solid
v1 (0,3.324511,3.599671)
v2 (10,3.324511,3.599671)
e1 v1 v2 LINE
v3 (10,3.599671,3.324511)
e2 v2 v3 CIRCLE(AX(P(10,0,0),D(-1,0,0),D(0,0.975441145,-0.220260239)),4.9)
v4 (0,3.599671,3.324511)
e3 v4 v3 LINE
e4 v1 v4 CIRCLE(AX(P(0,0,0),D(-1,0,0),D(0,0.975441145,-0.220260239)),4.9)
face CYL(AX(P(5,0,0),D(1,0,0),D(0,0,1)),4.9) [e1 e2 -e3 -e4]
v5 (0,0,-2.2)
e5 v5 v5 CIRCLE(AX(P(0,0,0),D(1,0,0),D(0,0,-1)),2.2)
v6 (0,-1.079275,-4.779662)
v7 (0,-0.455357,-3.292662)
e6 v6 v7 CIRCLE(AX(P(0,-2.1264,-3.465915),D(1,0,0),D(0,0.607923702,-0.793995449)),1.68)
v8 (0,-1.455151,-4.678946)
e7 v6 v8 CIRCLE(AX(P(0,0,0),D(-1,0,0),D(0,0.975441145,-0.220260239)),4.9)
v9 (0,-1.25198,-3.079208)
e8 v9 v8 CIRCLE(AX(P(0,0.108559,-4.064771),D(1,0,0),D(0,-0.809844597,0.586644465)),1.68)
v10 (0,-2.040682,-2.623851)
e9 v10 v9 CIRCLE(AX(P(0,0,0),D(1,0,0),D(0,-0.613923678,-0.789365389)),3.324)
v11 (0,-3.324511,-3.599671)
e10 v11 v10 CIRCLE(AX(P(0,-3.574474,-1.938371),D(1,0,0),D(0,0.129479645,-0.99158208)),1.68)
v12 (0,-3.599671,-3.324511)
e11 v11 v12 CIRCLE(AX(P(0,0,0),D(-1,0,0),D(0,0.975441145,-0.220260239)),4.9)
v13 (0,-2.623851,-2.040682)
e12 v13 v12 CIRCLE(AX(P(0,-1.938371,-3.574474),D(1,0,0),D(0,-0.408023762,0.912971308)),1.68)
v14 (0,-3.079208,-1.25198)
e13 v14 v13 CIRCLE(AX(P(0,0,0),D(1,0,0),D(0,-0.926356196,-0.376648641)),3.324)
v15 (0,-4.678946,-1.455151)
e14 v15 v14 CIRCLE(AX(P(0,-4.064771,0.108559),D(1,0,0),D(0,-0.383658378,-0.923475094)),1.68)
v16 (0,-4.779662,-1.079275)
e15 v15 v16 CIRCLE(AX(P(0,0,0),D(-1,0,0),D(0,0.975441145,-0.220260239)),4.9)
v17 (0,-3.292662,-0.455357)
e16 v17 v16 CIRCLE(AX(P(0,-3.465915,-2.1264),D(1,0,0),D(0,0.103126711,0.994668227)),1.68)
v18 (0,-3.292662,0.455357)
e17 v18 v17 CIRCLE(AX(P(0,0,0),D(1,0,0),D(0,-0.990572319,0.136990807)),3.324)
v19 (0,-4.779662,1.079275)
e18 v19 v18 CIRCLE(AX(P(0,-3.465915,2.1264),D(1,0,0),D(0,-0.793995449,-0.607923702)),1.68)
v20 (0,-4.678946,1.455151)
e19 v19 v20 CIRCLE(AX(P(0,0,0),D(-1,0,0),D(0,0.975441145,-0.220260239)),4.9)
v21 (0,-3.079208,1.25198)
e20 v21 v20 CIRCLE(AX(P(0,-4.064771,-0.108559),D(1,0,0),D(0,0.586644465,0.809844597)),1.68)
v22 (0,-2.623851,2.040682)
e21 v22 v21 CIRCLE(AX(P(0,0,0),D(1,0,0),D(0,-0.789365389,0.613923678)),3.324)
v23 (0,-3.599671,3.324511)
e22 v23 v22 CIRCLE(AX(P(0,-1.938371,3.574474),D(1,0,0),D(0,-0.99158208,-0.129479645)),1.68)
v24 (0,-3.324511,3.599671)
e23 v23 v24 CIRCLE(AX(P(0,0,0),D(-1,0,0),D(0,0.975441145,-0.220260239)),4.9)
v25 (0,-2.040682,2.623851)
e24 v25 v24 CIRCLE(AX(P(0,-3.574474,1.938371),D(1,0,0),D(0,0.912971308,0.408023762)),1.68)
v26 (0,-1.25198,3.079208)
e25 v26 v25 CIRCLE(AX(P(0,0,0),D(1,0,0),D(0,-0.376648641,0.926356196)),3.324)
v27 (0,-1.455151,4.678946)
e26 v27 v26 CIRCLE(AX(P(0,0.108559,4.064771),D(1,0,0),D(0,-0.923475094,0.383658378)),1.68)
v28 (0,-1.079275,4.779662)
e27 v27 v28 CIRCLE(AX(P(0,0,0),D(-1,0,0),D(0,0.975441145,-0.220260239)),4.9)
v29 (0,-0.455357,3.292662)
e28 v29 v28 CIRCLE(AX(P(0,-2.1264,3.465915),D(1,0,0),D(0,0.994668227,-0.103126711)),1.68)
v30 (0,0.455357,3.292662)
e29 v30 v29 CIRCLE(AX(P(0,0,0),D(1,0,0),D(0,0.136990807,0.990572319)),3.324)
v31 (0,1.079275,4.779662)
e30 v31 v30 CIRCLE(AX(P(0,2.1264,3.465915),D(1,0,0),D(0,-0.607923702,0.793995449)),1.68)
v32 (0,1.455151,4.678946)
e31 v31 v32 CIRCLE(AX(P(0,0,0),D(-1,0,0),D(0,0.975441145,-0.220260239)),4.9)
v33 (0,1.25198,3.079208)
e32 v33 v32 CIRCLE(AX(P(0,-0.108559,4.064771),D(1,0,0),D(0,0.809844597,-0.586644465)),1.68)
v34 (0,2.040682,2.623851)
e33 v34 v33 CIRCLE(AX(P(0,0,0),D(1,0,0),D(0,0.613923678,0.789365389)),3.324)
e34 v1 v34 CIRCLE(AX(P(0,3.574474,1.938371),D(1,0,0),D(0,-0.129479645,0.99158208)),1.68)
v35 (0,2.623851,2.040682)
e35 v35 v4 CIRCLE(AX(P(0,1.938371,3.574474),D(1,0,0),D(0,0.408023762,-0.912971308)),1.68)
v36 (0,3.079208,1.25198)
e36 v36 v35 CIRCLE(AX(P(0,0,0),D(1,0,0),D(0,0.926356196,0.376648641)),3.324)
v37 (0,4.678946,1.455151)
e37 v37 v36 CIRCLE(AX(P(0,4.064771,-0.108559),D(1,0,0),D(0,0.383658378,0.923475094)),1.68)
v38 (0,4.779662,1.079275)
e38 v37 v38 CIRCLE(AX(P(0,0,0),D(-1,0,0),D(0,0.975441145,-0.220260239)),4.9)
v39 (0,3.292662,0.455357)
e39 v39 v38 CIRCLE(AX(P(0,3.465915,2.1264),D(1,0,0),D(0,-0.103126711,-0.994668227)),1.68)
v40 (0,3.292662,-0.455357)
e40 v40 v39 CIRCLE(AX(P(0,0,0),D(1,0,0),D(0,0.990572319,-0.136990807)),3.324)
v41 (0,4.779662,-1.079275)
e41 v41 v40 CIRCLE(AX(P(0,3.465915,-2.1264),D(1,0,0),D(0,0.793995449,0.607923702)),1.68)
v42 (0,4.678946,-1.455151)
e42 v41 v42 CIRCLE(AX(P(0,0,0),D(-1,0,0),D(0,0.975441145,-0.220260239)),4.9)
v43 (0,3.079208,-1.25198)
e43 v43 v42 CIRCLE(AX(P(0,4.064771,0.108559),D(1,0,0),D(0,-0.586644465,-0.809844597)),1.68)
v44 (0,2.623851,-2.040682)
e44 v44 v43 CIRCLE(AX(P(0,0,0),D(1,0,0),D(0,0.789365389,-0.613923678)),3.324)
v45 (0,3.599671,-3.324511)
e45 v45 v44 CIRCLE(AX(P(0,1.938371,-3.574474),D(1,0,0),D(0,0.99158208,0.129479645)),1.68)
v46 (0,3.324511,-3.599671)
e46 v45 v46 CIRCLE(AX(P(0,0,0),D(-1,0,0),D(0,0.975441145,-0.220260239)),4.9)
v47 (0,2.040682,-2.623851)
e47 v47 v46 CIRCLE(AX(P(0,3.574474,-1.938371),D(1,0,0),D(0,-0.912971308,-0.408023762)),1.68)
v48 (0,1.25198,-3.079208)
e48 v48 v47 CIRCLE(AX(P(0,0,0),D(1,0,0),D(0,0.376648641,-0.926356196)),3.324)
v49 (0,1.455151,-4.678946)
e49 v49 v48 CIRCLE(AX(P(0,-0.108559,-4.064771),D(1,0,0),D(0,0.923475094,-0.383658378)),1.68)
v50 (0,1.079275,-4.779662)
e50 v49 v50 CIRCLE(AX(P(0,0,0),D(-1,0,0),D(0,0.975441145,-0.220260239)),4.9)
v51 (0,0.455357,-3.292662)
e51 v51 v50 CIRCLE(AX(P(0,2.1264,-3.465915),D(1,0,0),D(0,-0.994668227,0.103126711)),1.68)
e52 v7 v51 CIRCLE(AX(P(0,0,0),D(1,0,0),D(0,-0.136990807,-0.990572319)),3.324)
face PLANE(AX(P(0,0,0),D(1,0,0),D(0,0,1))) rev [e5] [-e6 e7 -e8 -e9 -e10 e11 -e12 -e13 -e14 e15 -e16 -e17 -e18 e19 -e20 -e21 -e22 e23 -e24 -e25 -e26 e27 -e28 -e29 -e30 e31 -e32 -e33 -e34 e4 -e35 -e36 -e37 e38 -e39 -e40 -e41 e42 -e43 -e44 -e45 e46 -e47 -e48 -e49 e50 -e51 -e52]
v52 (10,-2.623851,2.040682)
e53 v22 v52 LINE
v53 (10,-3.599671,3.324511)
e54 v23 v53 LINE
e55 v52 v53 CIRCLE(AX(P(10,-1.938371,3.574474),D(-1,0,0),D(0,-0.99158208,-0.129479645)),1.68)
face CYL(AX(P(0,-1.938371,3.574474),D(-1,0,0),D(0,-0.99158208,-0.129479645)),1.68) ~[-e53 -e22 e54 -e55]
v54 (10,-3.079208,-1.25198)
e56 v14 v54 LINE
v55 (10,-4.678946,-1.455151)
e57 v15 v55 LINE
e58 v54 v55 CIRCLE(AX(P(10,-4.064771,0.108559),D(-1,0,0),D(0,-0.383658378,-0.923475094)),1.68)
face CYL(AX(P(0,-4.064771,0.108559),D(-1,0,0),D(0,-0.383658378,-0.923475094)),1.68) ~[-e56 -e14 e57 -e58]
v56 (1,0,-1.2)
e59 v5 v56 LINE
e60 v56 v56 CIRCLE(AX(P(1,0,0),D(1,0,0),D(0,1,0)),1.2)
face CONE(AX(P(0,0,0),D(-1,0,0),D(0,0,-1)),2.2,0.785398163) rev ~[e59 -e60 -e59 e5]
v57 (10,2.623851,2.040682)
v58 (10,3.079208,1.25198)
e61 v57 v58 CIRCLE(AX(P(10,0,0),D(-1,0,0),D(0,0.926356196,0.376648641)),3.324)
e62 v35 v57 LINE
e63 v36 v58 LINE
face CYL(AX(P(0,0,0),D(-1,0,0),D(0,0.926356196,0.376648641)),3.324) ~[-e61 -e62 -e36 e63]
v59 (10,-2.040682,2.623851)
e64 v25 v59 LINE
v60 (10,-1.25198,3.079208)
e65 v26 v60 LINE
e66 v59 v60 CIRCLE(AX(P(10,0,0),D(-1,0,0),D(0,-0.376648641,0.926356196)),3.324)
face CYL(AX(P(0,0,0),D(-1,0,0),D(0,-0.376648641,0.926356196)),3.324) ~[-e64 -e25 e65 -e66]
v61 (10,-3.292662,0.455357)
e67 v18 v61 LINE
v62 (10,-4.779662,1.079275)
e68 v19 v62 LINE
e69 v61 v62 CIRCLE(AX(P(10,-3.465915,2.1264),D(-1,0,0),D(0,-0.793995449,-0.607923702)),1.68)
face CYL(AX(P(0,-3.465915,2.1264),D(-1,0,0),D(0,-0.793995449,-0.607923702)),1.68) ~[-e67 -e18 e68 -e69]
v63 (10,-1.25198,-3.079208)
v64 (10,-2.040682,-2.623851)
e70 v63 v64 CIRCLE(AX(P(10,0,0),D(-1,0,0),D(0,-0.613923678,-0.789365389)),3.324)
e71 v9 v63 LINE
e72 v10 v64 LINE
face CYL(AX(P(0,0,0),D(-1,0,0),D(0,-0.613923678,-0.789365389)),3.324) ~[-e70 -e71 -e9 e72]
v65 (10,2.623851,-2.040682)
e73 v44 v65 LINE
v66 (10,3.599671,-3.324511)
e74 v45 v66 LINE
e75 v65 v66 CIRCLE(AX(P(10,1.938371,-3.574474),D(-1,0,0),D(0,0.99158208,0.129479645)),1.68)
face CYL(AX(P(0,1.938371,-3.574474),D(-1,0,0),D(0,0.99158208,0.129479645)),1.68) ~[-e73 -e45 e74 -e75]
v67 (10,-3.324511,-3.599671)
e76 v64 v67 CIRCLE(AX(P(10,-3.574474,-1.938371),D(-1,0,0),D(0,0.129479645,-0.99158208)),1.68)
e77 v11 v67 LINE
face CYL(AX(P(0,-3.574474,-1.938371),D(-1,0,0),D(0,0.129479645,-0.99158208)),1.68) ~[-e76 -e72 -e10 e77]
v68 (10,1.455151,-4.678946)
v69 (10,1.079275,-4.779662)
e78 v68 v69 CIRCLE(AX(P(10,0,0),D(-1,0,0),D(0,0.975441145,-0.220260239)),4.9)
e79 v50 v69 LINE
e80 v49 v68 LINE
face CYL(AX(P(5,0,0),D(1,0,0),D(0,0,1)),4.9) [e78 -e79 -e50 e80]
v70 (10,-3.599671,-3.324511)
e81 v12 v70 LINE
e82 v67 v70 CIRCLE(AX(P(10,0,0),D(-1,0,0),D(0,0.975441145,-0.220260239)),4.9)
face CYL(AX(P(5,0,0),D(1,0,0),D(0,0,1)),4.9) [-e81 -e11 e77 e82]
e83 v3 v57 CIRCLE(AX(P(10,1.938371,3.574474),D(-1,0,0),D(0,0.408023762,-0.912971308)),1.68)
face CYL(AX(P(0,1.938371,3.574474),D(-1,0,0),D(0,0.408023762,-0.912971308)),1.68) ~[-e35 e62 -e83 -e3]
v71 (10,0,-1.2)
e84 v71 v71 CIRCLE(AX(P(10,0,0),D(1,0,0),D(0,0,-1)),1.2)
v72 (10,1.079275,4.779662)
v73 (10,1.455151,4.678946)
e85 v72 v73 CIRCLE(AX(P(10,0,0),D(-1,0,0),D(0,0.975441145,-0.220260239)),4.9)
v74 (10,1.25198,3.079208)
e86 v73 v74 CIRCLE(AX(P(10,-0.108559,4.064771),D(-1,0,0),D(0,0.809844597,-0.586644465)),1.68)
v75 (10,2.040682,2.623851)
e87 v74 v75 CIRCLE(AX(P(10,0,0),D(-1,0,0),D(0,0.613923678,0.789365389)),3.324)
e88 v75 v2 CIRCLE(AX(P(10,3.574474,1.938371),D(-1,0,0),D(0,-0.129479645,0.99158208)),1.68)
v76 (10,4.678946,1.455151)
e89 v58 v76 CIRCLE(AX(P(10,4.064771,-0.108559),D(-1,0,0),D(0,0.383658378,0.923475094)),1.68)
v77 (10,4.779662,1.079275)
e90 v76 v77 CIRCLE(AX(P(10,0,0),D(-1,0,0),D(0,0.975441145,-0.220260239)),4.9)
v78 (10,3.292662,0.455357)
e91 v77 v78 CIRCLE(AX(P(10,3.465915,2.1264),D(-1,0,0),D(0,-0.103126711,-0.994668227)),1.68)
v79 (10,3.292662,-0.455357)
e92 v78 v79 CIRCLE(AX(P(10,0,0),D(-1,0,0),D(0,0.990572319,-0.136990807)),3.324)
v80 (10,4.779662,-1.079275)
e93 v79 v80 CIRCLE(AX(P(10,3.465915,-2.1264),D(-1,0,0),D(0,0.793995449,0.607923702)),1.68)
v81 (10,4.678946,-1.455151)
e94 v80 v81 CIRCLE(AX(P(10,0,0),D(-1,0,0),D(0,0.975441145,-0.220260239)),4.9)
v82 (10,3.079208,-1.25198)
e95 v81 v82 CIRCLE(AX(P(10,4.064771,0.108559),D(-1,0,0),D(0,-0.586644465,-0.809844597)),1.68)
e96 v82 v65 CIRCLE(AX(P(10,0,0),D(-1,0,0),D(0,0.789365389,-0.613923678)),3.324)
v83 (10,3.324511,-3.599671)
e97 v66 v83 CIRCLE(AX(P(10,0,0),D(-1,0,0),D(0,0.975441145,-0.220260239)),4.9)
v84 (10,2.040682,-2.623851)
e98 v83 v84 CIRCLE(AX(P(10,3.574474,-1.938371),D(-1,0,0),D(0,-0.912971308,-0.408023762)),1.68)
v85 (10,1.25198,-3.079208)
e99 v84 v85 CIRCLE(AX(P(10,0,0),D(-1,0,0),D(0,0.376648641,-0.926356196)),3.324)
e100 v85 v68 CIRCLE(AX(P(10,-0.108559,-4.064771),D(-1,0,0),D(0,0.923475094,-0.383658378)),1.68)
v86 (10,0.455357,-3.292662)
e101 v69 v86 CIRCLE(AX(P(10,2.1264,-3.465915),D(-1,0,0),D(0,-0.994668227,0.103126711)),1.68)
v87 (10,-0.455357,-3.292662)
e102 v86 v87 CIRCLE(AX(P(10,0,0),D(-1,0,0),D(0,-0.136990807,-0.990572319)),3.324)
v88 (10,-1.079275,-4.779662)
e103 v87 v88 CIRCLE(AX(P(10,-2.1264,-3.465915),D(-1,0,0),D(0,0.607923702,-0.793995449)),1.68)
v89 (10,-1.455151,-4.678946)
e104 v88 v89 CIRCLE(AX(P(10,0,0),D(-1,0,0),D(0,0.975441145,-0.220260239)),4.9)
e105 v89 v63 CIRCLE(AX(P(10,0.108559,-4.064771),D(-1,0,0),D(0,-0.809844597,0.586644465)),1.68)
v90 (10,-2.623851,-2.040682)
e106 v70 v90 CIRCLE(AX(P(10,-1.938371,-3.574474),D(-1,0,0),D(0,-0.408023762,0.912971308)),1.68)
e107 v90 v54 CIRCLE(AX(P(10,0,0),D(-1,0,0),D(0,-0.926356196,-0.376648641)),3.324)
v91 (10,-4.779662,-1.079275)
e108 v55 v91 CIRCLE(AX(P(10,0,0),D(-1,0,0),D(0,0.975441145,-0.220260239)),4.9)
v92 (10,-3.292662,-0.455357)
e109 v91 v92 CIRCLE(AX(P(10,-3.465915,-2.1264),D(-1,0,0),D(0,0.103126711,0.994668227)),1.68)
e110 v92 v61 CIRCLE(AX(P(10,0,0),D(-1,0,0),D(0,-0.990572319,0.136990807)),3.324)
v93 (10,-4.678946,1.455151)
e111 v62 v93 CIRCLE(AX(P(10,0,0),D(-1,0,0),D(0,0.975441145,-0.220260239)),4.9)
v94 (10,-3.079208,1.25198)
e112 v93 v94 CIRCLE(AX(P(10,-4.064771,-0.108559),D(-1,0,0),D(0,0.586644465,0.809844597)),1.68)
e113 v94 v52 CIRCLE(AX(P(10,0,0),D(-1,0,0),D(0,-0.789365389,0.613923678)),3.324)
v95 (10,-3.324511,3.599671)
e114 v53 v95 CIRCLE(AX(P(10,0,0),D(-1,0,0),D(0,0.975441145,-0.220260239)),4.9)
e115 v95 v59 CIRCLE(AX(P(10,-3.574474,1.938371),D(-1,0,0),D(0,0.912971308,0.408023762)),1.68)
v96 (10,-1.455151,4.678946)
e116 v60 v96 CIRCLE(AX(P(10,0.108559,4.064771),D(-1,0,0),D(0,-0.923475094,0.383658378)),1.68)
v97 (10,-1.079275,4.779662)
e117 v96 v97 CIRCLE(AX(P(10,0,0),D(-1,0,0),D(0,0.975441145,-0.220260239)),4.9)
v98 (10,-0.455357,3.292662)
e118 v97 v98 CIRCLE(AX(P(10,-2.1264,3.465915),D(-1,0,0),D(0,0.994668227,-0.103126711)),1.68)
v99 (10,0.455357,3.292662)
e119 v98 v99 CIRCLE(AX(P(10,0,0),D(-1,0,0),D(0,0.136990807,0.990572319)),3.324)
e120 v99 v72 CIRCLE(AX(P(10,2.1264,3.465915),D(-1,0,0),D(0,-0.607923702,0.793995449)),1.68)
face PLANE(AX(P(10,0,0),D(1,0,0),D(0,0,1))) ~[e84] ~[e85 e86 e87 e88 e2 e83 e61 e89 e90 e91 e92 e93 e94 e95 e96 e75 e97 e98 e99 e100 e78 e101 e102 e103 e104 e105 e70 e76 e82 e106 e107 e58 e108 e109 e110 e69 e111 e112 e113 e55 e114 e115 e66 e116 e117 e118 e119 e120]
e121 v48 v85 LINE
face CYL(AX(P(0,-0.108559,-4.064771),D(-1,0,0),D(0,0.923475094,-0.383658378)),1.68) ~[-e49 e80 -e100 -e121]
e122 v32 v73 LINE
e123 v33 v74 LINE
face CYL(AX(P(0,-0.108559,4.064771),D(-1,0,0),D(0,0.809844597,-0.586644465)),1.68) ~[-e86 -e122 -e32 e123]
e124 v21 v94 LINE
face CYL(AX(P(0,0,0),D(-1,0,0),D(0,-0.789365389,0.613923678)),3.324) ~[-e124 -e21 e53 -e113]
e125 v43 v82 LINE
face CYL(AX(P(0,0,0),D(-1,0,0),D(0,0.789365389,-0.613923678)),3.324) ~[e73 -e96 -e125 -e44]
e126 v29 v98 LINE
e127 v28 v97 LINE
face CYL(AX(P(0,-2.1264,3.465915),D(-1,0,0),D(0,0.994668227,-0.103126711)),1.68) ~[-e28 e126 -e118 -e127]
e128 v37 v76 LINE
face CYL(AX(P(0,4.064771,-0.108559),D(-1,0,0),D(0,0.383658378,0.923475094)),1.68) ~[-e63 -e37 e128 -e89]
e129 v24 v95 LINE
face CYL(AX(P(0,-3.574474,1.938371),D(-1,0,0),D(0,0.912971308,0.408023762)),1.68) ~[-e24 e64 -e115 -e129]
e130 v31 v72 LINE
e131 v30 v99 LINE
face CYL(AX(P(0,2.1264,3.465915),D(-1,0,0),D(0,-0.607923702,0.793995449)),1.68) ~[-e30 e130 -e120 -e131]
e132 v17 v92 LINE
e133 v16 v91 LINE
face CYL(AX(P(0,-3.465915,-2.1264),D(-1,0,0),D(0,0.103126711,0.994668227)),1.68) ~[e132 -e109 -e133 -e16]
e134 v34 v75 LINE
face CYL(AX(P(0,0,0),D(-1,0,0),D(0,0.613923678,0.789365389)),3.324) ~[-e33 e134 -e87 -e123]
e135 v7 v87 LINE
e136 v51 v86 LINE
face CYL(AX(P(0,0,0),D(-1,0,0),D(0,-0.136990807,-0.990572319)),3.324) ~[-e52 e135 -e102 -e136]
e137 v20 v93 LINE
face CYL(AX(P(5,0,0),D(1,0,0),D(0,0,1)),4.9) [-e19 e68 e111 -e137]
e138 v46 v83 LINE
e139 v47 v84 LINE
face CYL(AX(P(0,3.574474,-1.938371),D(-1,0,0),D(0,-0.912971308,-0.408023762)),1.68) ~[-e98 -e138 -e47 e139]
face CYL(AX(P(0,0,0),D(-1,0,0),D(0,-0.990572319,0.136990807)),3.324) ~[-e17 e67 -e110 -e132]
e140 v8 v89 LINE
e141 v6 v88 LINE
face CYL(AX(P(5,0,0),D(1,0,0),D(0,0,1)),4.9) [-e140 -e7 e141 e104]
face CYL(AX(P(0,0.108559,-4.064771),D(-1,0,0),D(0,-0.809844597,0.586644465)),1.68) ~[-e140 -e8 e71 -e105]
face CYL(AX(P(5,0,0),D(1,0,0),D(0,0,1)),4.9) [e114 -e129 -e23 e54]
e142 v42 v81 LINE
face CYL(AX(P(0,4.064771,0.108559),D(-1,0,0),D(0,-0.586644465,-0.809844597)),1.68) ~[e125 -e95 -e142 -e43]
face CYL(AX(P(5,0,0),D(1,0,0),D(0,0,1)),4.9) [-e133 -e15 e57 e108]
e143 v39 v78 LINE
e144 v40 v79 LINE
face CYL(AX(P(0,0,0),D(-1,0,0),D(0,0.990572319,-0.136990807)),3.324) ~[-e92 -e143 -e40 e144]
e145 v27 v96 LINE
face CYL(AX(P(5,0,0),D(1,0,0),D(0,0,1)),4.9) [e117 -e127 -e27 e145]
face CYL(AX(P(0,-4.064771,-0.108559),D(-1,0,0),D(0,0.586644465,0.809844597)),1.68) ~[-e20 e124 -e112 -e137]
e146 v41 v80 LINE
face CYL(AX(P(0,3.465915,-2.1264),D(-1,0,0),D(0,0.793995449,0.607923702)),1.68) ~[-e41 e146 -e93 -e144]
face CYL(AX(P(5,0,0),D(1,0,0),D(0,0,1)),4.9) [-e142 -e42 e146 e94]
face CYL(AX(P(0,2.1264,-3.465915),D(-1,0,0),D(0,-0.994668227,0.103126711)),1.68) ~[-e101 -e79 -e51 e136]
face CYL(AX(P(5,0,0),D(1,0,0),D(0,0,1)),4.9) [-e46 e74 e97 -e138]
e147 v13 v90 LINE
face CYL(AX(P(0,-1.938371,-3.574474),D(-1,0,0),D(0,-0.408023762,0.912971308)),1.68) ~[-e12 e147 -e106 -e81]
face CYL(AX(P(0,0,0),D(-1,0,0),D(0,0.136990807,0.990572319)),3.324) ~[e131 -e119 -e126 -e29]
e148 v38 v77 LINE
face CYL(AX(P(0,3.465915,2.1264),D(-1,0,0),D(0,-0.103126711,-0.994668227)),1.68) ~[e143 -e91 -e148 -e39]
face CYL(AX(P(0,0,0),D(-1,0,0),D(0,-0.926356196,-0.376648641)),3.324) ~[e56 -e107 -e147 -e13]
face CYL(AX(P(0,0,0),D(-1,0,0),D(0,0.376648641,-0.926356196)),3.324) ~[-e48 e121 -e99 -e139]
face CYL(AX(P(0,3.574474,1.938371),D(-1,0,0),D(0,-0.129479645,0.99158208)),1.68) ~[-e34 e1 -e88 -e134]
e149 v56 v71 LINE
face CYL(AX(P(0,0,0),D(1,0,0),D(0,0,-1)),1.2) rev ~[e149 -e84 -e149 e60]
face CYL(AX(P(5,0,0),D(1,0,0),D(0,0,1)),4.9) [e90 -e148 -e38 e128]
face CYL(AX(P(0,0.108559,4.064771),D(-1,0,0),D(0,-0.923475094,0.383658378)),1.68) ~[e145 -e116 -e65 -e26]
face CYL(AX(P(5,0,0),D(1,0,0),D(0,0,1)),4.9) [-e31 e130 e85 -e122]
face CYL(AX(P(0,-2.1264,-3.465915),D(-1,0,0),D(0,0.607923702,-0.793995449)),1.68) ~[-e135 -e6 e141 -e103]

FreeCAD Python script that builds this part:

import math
import FreeCAD as App
import Part
import Sketcher

V = App.Vector
Q = App.Units.Quantity

doc = App.newDocument("Part")
body = doc.addObject("PartDesign::Body", "Body")

sketch1 = body.newObject("Sketcher::SketchObject", "Sketch")
sketch1.AttachmentSupport = (doc.getObject("XZ_Plane"), [""])
sketch1.MapMode = "FlatFace"
sketch1.addGeometry([
    Part.LineSegment(V(0, -4.9, 0), V(0, 0, 0)),
    Part.LineSegment(V(0, 0, 0), V(10, 0, 0)),
    Part.LineSegment(V(10, 0, 0), V(10, -4.9, 0)),
    Part.LineSegment(V(10, -4.9, 0), V(0, -4.9, 0)),
], False)
sketch1.addConstraint([
    Sketcher.Constraint("Coincident", 0, 2, 1, 1),
    Sketcher.Constraint("Coincident", 1, 2, 2, 1),
    Sketcher.Constraint("Coincident", 2, 2, 3, 1),
    Sketcher.Constraint("Coincident", 3, 2, 0, 1),
    Sketcher.Constraint("Vertical", 0),
    Sketcher.Constraint("Horizontal", 1),
    Sketcher.Constraint("Vertical", 2),
    Sketcher.Constraint("Horizontal", 3),
    Sketcher.Constraint("Coincident", 0, 2, -1, 1),
    Sketcher.Constraint("DistanceX", 1, 1, 1, 2, Q("10 mm")),
    Sketcher.Constraint("DistanceY", 0, 1, 0, 2, Q("4.9 mm")),
])
revolution = body.newObject("PartDesign::Revolution", "Revolution")
revolution.Profile = sketch1
revolution.ReferenceAxis = (sketch1, ["H_Axis"])
revolution.Angle = 360

sketch2 = body.newObject("Sketcher::SketchObject", "Sketch001")
sketch2.AttachmentSupport = (doc.getObject("YZ_Plane"), [""])
sketch2.MapMode = "FlatFace"
sketch2.addGeometry([
    Part.ArcOfCircle(Part.Circle(V(0, 0, 0), V(0, 0, 1), 3.3), math.radians(-7.87), math.radians(7.87)),
    Part.ArcOfCircle(Part.Circle(V(3.5, -2.1, 0), V(0, 0, 1), 1.7), math.radians(37), math.radians(96)),
    Part.ArcOfCircle(Part.Circle(V(0, 0, 0), V(0, 0, 1), 4.9), math.radians(-13), math.radians(13)),
    Part.ArcOfCircle(Part.Circle(V(3.5, 2.1, 0), V(0, 0, 1), 1.7), math.radians(-96), math.radians(-37)),
], False)
sketch2.addConstraint([
    Sketcher.Constraint("Coincident", 0, 1, 1, 2),
    Sketcher.Constraint("Coincident", 1, 1, 2, 1),
    Sketcher.Constraint("Coincident", 2, 2, 3, 2),
    Sketcher.Constraint("Coincident", 3, 1, 0, 2),
    Sketcher.Constraint("Coincident", 0, 3, -1, 1),
    Sketcher.Constraint("Coincident", 2, 3, -1, 1),
    Sketcher.Constraint("Equal", 1, 3),
    Sketcher.Constraint("Symmetric", 1, 3, 3, 3, -1),
    Sketcher.Constraint("Radius", 1, Q("1.68 mm")),
    Sketcher.Constraint("Radius", 0, Q("3.324 mm")),
    Sketcher.Constraint("Radius", 2, Q("4.9254 mm")),
    Sketcher.Constraint("DistanceY", 1, 3, -1, 1, Q("2.1264 mm")),
    Sketcher.Constraint("DistanceY", 1, 1, -1, 1, Q("1.105088 mm")),
])
pocket1 = body.newObject("PartDesign::Pocket", "Pocket")
pocket1.Profile = sketch2
pocket1.Type = "ThroughAll"
pocket1.Reversed = True
doc.recompute()

polarpattern = body.newObject("PartDesign::PolarPattern", "PolarPattern")
polarpattern.Originals = [pocket1]
polarpattern.Axis = (doc.getObject("X_Axis"), [""])
polarpattern.Angle = 360
polarpattern.Occurrences = 12
body.Tip = polarpattern

sketch3 = body.newObject("Sketcher::SketchObject", "Sketch002")
sketch3.AttachmentSupport = (doc.getObject("YZ_Plane"), [""])
sketch3.MapMode = "FlatFace"
sketch3.addGeometry(Part.Circle(V(0, 0, 0), V(0, 0, 1), 0.5), False)
sketch3.addConstraint([
    Sketcher.Constraint("Coincident", 0, 3, -1, 1),
    Sketcher.Constraint("Diameter", 0, Q("1 mm")),
])
pocket2 = body.newObject("PartDesign::Pocket", "Pocket001")
pocket2.Profile = sketch3
pocket2.Length = 100.000102
pocket2.Midplane = True

sketch4 = body.newObject("Sketcher::SketchObject", "Sketch003")
sketch4.AttachmentSupport = (doc.getObject("YZ_Plane"), [""])
sketch4.MapMode = "FlatFace"
sketch4.addGeometry(Part.Circle(V(0, 0, 0), V(0, 0, 1), 1), False)
sketch4.addConstraint([
    Sketcher.Constraint("Coincident", 0, 3, -1, 1),
    Sketcher.Constraint("Diameter", 0, Q("2 mm")),
])
pocket3 = body.newObject("PartDesign::Pocket", "Pocket002")
pocket3.Profile = sketch4
pocket3.Type = "ThroughAll"
pocket3.Reversed = True

sketch5 = body.newObject("Sketcher::SketchObject", "Sketch004")
sketch5.AttachmentSupport = (doc.getObject("YZ_Plane"), [""])
sketch5.MapMode = "FlatFace"
sketch5.addGeometry(Part.Circle(V(0, 0, 0), V(0, 0, 1), 1.2), False)
sketch5.addConstraint([
    Sketcher.Constraint("Coincident", 0, 3, -1, 1),
    Sketcher.Constraint("Diameter", 0, Q("2.4 mm")),
])
doc.recompute()
hole = body.newObject("PartDesign::Hole", "Hole")
hole.Profile = sketch5
hole.ThreadType = "None"
hole.Diameter = 2.4
hole.DepthType = "ThroughAll"
hole.HoleCutType = "Countersink"
hole.HoleCutDiameter = 4.4
hole.HoleCutCountersinkAngle = 90
hole.Reversed = True

doc.recompute()
